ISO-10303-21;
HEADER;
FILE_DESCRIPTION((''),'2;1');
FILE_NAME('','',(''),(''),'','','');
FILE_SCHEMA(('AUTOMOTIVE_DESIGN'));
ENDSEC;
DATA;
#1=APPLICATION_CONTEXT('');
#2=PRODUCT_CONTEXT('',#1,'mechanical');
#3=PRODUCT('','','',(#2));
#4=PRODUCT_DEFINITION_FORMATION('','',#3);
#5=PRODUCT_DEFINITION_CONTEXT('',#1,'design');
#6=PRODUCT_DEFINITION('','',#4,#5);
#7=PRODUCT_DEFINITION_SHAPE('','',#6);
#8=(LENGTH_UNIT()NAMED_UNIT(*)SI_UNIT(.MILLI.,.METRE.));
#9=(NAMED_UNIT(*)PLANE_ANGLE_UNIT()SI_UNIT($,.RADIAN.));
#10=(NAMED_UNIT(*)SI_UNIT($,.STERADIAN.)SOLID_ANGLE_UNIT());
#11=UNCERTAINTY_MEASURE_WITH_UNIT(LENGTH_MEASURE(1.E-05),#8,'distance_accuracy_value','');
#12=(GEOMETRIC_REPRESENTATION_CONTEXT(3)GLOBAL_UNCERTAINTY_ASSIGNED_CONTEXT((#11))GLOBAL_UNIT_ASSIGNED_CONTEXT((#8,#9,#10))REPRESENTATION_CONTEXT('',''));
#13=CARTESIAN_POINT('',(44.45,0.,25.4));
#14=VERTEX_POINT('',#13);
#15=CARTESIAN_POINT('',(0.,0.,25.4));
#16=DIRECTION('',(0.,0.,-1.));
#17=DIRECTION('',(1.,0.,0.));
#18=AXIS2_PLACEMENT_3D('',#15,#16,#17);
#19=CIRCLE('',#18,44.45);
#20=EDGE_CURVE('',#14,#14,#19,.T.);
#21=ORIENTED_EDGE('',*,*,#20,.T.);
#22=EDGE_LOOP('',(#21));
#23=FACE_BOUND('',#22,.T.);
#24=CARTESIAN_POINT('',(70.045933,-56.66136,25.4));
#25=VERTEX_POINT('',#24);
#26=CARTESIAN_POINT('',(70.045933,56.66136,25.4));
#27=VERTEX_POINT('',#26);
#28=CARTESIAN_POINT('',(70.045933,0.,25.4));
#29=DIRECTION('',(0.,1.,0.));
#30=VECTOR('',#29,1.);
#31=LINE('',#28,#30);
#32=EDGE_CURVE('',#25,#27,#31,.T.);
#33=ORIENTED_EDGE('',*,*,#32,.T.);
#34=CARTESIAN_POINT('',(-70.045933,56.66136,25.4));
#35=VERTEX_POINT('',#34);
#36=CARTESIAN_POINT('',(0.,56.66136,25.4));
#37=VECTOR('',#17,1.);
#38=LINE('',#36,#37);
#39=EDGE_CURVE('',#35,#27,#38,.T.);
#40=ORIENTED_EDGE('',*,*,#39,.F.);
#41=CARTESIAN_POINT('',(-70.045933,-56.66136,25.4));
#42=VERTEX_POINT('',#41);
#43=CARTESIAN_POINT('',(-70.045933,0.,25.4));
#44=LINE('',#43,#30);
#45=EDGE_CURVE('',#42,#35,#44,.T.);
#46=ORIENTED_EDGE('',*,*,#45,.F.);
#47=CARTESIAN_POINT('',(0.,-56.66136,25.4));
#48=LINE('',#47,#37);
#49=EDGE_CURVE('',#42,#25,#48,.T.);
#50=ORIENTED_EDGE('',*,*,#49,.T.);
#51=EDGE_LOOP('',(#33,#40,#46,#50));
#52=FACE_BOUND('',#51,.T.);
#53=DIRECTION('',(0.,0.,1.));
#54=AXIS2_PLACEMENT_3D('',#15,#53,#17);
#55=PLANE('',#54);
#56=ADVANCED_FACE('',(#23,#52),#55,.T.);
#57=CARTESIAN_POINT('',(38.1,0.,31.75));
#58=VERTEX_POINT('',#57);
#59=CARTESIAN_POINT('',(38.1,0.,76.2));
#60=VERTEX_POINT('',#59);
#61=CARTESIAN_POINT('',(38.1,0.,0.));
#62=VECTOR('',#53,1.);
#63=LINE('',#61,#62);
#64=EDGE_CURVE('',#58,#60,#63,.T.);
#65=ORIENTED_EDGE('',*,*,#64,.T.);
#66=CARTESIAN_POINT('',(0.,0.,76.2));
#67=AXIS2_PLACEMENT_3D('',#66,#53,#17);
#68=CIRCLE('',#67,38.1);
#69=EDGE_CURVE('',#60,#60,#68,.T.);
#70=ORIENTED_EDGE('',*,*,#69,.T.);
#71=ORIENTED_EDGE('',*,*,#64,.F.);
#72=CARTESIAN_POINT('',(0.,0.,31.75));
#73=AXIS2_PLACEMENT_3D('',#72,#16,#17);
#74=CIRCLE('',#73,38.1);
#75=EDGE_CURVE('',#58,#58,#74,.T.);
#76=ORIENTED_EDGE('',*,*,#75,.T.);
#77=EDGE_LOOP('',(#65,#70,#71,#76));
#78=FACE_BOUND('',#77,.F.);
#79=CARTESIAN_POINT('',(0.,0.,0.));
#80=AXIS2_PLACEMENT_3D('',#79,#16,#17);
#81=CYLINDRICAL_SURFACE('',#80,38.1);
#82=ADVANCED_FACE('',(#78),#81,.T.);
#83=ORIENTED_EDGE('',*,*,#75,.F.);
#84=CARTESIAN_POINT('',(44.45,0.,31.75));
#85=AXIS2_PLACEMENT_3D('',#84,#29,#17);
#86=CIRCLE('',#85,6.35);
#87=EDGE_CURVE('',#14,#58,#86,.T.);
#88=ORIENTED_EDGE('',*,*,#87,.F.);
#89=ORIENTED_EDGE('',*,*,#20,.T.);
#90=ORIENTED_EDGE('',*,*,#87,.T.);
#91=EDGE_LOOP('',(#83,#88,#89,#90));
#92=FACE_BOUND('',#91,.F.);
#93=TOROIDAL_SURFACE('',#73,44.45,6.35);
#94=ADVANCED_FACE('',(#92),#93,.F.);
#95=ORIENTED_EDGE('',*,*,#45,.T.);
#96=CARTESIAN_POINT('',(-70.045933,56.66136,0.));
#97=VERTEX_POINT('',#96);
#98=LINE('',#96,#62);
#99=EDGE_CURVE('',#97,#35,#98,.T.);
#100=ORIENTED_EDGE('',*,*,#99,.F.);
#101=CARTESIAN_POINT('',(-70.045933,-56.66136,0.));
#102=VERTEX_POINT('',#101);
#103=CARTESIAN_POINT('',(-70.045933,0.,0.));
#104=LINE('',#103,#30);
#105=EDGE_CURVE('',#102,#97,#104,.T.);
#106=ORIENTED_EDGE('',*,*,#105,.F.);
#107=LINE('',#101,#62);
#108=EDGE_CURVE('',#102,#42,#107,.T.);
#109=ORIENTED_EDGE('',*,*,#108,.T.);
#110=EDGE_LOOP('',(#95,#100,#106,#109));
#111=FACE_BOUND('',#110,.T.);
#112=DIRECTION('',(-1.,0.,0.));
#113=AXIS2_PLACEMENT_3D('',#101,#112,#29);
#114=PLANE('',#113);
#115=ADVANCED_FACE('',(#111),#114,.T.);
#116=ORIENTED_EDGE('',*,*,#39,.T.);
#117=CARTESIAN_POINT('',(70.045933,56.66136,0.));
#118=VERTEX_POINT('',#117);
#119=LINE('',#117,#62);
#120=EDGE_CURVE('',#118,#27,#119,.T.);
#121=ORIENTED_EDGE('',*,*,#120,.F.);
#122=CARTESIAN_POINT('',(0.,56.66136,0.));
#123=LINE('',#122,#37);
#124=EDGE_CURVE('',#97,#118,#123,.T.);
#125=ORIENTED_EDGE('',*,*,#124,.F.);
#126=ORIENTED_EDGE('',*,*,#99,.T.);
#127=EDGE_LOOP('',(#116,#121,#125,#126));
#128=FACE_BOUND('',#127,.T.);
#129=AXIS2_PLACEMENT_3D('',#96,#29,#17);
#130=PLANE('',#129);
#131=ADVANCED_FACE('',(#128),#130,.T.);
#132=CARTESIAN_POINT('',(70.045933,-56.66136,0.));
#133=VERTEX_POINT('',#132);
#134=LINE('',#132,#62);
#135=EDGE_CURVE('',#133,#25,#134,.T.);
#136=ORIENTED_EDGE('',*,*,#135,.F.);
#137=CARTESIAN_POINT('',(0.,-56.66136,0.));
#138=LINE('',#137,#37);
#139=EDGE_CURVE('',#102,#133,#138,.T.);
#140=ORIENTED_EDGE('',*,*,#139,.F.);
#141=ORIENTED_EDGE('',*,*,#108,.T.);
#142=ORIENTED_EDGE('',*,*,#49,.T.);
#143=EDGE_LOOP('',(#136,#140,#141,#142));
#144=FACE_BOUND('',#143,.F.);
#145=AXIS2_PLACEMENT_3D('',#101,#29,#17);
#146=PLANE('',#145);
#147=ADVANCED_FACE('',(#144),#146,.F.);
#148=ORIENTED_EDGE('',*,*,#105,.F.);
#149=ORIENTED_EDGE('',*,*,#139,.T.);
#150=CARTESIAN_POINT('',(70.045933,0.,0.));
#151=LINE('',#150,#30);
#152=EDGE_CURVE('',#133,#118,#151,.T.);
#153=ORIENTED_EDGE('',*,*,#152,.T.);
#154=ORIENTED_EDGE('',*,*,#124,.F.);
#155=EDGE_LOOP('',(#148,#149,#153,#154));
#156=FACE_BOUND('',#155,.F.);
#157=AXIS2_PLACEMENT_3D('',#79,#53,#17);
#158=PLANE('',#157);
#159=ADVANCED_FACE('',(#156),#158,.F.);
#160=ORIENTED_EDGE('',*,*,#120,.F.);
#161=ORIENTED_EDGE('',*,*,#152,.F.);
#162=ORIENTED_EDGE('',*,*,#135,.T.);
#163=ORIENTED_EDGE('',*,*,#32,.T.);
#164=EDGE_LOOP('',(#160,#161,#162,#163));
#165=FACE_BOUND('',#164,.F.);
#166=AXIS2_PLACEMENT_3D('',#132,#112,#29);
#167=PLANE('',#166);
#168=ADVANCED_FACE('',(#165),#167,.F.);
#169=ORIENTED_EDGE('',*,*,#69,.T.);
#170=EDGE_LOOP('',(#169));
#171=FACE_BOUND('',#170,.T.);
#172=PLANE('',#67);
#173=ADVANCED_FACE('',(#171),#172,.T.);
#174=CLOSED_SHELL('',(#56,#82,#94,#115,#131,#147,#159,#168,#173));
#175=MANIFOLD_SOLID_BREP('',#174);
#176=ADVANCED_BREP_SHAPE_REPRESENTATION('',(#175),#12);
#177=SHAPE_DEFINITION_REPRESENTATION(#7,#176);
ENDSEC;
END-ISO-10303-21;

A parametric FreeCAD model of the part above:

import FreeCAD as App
import Part
import Sketcher
Q = App.Units.Quantity


def edges_at(feature, points):
    """Names of the edges that pass closest to the given points."""
    edges = feature.Shape.Edges
    near = lambda p: min(range(len(edges)), key=lambda i: edges[i].distToShape(Part.Vertex(*p))[0])
    return sorted({f"Edge{near(p) + 1}" for p in points})


def add_polygon(sketch, points):
    """Adds a closed chain of lines whose ends are joined by coincident constraints."""
    first, n = sketch.GeometryCount, len(points)
    for a, b in zip(points, points[1:] + points[:1]):
        sketch.addGeometry(Part.LineSegment(App.Vector(*a, 0), App.Vector(*b, 0)), False)
    for i in range(n):
        sketch.addConstraint(Sketcher.Constraint("Coincident", first + i, 2, first + (i + 1) % n, 1))

doc = App.newDocument("Part")
body = doc.addObject("PartDesign::Body", "Body")

# Sketch on XY plane
sketch1 = doc.addObject("Sketcher::SketchObject", "Sketch")
body.addObject(sketch1)
sketch1.AttachmentSupport = (doc.XY_Plane, [""])
sketch1.MapMode = "FlatFace"
sketch1.addGeometry(Part.Circle(App.Vector(0, 0, 0), App.Vector(0, 0, 1), 38), False)
sketch1.addConstraint(Sketcher.Constraint("Coincident", 0, 3, -1, 1))
sketch1.addConstraint(Sketcher.Constraint("Diameter", 0, Q("3 in")))
pad1 = doc.addObject("PartDesign::Pad", "Pad")
body.addObject(pad1)
pad1.Profile = sketch1
pad1.Length = Q("3 in")

# Sketch on XY plane
sketch2 = doc.addObject("Sketcher::SketchObject", "Sketch001")
body.addObject(sketch2)
sketch2.AttachmentSupport = (doc.XY_Plane, [""])
sketch2.MapMode = "FlatFace"
add_polygon(sketch2, [(-70, 57), (-70, -57), (70, -57), (70, 57)])  # lines 0-3
sketch2.addConstraint(Sketcher.Constraint("Vertical", 0))
sketch2.addConstraint(Sketcher.Constraint("Horizontal", 1))
sketch2.addConstraint(Sketcher.Constraint("Vertical", 2))
sketch2.addConstraint(Sketcher.Constraint("Horizontal", 3))
sketch2.addConstraint(Sketcher.Constraint("Symmetric", 0, 2, 2, 2, -1, 1))
sketch2.addConstraint(Sketcher.Constraint("DistanceY", 0, 2, 0, 1, Q("113.32272 mm")))
sketch2.addConstraint(Sketcher.Constraint("DistanceX", 1, 1, 1, 2, Q("140.091866 mm")))
pad2 = doc.addObject("PartDesign::Pad", "Pad001")
body.addObject(pad2)
pad2.Profile = sketch2
pad2.Length = Q("1 in")
doc.recompute()

fillet = doc.addObject("PartDesign::Fillet", "Fillet")
body.addObject(fillet)
fillet.Base = (pad2, edges_at(pad2, [(-38.1, 0, 25.4)]))
fillet.Radius = Q("0.25 in")

doc.recompute()
